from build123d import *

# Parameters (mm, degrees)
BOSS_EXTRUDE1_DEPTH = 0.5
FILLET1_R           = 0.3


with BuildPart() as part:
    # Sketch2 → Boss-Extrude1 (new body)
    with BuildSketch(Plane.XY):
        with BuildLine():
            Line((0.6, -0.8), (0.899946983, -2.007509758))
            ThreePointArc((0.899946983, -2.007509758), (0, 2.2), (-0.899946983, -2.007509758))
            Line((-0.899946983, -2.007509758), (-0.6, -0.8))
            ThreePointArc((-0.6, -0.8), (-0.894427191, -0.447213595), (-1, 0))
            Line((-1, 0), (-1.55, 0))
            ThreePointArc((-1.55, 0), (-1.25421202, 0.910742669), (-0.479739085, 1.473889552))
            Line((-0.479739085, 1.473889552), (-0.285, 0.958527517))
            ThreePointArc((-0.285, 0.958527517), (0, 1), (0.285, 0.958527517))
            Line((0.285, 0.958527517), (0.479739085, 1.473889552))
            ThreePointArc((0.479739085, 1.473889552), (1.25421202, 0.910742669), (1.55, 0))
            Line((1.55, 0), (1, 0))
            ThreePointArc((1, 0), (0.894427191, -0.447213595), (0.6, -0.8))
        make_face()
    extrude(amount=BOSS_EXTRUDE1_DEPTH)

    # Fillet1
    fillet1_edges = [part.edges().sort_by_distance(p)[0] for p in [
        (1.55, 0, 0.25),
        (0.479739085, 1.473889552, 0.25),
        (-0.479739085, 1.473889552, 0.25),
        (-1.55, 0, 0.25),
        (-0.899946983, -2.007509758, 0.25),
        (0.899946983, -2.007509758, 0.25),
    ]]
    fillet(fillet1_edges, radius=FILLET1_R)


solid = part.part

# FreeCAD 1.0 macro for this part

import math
import FreeCAD as App
import Part
import Sketcher
Q = App.Units.Quantity


def edges_at(feature, points):
    """Names of the edges that pass closest to the given points."""
    edges = feature.Shape.Edges
    near = lambda p: min(range(len(edges)), key=lambda i: edges[i].distToShape(Part.Vertex(*p))[0])
    return sorted({f"Edge{near(p) + 1}" for p in points})

doc = App.newDocument("Part")
params = doc.addObject("Spreadsheet::Sheet", "Params")
for row, (alias, value) in enumerate([
    ("sketch1_radius", "1 mm"),
    ("sketch1_radius2", "2.2 mm"),
    ("sketch1_radius3", "1.55 mm"),
    ("pad1_length", "0.5 mm"),
    ("fillet_radius", "0.3 mm"),
], start=1):
    params.set(f"A{row}", alias)
    params.set(f"B{row}", "=" + value)
    params.setAlias(f"B{row}", alias)

body = doc.addObject("PartDesign::Body", "Body")

sketch1 = doc.addObject("Sketcher::SketchObject", "Sketch")
body.addObject(sketch1)
sketch1.AttachmentSupport = (doc.XY_Plane, [""])
sketch1.MapMode = "FlatFace"
sketch1.addGeometry(Part.LineSegment(App.Vector(0.6, -0.8, 0), App.Vector(0.9, -2, 0)), False)
sketch1.addGeometry(Part.ArcOfCircle(Part.Circle(App.Vector(0, 0, 0), App.Vector(0, 0, 1), 2.2), math.radians(-66), math.radians(246)), False)
sketch1.addGeometry(Part.LineSegment(App.Vector(-0.9, -2, 0), App.Vector(-0.6, -0.8, 0)), False)
sketch1.addGeometry(Part.ArcOfCircle(Part.Circle(App.Vector(0, 0, 0), App.Vector(0, 0, 1), 1), math.radians(-180), math.radians(-127)), False)
sketch1.addGeometry(Part.LineSegment(App.Vector(-1, 0, 0), App.Vector(-1.6, 0, 0)), False)
sketch1.addGeometry(Part.ArcOfCircle(Part.Circle(App.Vector(0, 0, 0), App.Vector(0, 0, 1), 1.6), math.radians(108), math.radians(180)), False)
sketch1.addGeometry(Part.LineSegment(App.Vector(-0.5, 1.5, 0), App.Vector(-0.3, 1, 0)), False)
sketch1.addGeometry(Part.ArcOfCircle(Part.Circle(App.Vector(0, 0, 0), App.Vector(0, 0, 1), 1), math.radians(73), math.radians(107)), False)
sketch1.addGeometry(Part.LineSegment(App.Vector(0.3, 1, 0), App.Vector(0.5, 1.5, 0)), False)
sketch1.addGeometry(Part.ArcOfCircle(Part.Circle(App.Vector(0, 0, 0), App.Vector(0, 0, 1), 1.6), math.radians(0), math.radians(72)), False)
sketch1.addGeometry(Part.LineSegment(App.Vector(1.6, 0, 0), App.Vector(1, 0, 0)), False)
sketch1.addGeometry(Part.ArcOfCircle(Part.Circle(App.Vector(0, 0, 0), App.Vector(0, 0, 1), 1), math.radians(-53), math.radians(0)), False)
sketch1.addConstraint(Sketcher.Constraint("Coincident", 0, 2, 1, 1))
sketch1.addConstraint(Sketcher.Constraint("Coincident", 1, 2, 2, 1))
sketch1.addConstraint(Sketcher.Constraint("Coincident", 2, 2, 3, 2))
sketch1.addConstraint(Sketcher.Constraint("Coincident", 3, 1, 4, 1))
sketch1.addConstraint(Sketcher.Constraint("Coincident", 4, 2, 5, 2))
sketch1.addConstraint(Sketcher.Constraint("Coincident", 5, 1, 6, 1))
sketch1.addConstraint(Sketcher.Constraint("Coincident", 6, 2, 7, 2))
sketch1.addConstraint(Sketcher.Constraint("Coincident", 7, 1, 8, 1))
sketch1.addConstraint(Sketcher.Constraint("Coincident", 8, 2, 9, 2))
sketch1.addConstraint(Sketcher.Constraint("Coincident", 9, 1, 10, 1))
sketch1.addConstraint(Sketcher.Constraint("Coincident", 10, 2, 11, 2))
sketch1.addConstraint(Sketcher.Constraint("Coincident", 11, 1, 0, 1))
sketch1.addConstraint(Sketcher.Constraint("Horizontal", 4))
sketch1.addConstraint(Sketcher.Constraint("Horizontal", 10))
sketch1.addConstraint(Sketcher.Constraint("Coincident", 1, 3, -1, 1))
sketch1.addConstraint(Sketcher.Constraint("Coincident", 3, 3, -1, 1))
sketch1.addConstraint(Sketcher.Constraint("Coincident", 5, 3, -1, 1))
sketch1.addConstraint(Sketcher.Constraint("Coincident", 7, 3, -1, 1))
sketch1.addConstraint(Sketcher.Constraint("Coincident", 9, 3, -1, 1))
sketch1.addConstraint(Sketcher.Constraint("Coincident", 11, 3, -1, 1))
sketch1.addConstraint(Sketcher.Constraint("Equal", 3, 7))
sketch1.addConstraint(Sketcher.Constraint("Equal", 5, 9))
sketch1.addConstraint(Sketcher.Constraint("Equal", 7, 11))
sketch1.addConstraint(Sketcher.Constraint("PointOnObject", 3, 1, -1))
sketch1.addConstraint(Sketcher.Constraint("PointOnObject", 9, 1, -1))
sketch1.addConstraint(Sketcher.Constraint("Horizontal", 0, 2, 1, 2))
sketch1.addConstraint(Sketcher.Constraint("Horizontal", 6, 2, 7, 1))
sketch1.addConstraint(Sketcher.Constraint("Horizontal", 5, 1, 8, 2))
sketch1.addConstraint(Sketcher.Constraint("Horizontal", 2, 2, 11, 1))
sketch1.addConstraint(Sketcher.Constraint("Radius", 3, 1.0))
sketch1.addConstraint(Sketcher.Constraint("Radius", 1, 2.2))
sketch1.addConstraint(Sketcher.Constraint("Radius", 5, 1.55))
sketch1.addConstraint(Sketcher.Constraint("Angle", 6, Q("-69.3 deg")))
sketch1.addConstraint(Sketcher.Constraint("DistanceX", 2, 2, -1, 1, 0.6))
sketch1.addConstraint(Sketcher.Constraint("Angle", 0, Q("-76.05 deg")))
sketch1.addConstraint(Sketcher.Constraint("DistanceX", 6, 2, 7, 1, 0.57))
sketch1.setExpression("Constraints[29]", "Params.sketch1_radius")
sketch1.setExpression("Constraints[30]", "Params.sketch1_radius2")
sketch1.setExpression("Constraints[31]", "Params.sketch1_radius3")
pad1 = doc.addObject("PartDesign::Pad", "Pad")
body.addObject(pad1)
pad1.Profile = sketch1
pad1.setExpression("Length", "Params.pad1_length")
doc.recompute()

fillet = doc.addObject("PartDesign::Fillet", "Fillet")
body.addObject(fillet)
fillet.Base = (pad1, edges_at(pad1, [
    (1.55, 0, 0.25),
    (0.48, 1.474, 0.25),
    (-0.48, 1.474, 0.25),
    (-1.55, 0, 0.25),
    (-0.9, -2.008, 0.25),
    (0.9, -2.008, 0.25),
]))
fillet.setExpression("Radius", "Params.fillet_radius")

doc.recompute()
